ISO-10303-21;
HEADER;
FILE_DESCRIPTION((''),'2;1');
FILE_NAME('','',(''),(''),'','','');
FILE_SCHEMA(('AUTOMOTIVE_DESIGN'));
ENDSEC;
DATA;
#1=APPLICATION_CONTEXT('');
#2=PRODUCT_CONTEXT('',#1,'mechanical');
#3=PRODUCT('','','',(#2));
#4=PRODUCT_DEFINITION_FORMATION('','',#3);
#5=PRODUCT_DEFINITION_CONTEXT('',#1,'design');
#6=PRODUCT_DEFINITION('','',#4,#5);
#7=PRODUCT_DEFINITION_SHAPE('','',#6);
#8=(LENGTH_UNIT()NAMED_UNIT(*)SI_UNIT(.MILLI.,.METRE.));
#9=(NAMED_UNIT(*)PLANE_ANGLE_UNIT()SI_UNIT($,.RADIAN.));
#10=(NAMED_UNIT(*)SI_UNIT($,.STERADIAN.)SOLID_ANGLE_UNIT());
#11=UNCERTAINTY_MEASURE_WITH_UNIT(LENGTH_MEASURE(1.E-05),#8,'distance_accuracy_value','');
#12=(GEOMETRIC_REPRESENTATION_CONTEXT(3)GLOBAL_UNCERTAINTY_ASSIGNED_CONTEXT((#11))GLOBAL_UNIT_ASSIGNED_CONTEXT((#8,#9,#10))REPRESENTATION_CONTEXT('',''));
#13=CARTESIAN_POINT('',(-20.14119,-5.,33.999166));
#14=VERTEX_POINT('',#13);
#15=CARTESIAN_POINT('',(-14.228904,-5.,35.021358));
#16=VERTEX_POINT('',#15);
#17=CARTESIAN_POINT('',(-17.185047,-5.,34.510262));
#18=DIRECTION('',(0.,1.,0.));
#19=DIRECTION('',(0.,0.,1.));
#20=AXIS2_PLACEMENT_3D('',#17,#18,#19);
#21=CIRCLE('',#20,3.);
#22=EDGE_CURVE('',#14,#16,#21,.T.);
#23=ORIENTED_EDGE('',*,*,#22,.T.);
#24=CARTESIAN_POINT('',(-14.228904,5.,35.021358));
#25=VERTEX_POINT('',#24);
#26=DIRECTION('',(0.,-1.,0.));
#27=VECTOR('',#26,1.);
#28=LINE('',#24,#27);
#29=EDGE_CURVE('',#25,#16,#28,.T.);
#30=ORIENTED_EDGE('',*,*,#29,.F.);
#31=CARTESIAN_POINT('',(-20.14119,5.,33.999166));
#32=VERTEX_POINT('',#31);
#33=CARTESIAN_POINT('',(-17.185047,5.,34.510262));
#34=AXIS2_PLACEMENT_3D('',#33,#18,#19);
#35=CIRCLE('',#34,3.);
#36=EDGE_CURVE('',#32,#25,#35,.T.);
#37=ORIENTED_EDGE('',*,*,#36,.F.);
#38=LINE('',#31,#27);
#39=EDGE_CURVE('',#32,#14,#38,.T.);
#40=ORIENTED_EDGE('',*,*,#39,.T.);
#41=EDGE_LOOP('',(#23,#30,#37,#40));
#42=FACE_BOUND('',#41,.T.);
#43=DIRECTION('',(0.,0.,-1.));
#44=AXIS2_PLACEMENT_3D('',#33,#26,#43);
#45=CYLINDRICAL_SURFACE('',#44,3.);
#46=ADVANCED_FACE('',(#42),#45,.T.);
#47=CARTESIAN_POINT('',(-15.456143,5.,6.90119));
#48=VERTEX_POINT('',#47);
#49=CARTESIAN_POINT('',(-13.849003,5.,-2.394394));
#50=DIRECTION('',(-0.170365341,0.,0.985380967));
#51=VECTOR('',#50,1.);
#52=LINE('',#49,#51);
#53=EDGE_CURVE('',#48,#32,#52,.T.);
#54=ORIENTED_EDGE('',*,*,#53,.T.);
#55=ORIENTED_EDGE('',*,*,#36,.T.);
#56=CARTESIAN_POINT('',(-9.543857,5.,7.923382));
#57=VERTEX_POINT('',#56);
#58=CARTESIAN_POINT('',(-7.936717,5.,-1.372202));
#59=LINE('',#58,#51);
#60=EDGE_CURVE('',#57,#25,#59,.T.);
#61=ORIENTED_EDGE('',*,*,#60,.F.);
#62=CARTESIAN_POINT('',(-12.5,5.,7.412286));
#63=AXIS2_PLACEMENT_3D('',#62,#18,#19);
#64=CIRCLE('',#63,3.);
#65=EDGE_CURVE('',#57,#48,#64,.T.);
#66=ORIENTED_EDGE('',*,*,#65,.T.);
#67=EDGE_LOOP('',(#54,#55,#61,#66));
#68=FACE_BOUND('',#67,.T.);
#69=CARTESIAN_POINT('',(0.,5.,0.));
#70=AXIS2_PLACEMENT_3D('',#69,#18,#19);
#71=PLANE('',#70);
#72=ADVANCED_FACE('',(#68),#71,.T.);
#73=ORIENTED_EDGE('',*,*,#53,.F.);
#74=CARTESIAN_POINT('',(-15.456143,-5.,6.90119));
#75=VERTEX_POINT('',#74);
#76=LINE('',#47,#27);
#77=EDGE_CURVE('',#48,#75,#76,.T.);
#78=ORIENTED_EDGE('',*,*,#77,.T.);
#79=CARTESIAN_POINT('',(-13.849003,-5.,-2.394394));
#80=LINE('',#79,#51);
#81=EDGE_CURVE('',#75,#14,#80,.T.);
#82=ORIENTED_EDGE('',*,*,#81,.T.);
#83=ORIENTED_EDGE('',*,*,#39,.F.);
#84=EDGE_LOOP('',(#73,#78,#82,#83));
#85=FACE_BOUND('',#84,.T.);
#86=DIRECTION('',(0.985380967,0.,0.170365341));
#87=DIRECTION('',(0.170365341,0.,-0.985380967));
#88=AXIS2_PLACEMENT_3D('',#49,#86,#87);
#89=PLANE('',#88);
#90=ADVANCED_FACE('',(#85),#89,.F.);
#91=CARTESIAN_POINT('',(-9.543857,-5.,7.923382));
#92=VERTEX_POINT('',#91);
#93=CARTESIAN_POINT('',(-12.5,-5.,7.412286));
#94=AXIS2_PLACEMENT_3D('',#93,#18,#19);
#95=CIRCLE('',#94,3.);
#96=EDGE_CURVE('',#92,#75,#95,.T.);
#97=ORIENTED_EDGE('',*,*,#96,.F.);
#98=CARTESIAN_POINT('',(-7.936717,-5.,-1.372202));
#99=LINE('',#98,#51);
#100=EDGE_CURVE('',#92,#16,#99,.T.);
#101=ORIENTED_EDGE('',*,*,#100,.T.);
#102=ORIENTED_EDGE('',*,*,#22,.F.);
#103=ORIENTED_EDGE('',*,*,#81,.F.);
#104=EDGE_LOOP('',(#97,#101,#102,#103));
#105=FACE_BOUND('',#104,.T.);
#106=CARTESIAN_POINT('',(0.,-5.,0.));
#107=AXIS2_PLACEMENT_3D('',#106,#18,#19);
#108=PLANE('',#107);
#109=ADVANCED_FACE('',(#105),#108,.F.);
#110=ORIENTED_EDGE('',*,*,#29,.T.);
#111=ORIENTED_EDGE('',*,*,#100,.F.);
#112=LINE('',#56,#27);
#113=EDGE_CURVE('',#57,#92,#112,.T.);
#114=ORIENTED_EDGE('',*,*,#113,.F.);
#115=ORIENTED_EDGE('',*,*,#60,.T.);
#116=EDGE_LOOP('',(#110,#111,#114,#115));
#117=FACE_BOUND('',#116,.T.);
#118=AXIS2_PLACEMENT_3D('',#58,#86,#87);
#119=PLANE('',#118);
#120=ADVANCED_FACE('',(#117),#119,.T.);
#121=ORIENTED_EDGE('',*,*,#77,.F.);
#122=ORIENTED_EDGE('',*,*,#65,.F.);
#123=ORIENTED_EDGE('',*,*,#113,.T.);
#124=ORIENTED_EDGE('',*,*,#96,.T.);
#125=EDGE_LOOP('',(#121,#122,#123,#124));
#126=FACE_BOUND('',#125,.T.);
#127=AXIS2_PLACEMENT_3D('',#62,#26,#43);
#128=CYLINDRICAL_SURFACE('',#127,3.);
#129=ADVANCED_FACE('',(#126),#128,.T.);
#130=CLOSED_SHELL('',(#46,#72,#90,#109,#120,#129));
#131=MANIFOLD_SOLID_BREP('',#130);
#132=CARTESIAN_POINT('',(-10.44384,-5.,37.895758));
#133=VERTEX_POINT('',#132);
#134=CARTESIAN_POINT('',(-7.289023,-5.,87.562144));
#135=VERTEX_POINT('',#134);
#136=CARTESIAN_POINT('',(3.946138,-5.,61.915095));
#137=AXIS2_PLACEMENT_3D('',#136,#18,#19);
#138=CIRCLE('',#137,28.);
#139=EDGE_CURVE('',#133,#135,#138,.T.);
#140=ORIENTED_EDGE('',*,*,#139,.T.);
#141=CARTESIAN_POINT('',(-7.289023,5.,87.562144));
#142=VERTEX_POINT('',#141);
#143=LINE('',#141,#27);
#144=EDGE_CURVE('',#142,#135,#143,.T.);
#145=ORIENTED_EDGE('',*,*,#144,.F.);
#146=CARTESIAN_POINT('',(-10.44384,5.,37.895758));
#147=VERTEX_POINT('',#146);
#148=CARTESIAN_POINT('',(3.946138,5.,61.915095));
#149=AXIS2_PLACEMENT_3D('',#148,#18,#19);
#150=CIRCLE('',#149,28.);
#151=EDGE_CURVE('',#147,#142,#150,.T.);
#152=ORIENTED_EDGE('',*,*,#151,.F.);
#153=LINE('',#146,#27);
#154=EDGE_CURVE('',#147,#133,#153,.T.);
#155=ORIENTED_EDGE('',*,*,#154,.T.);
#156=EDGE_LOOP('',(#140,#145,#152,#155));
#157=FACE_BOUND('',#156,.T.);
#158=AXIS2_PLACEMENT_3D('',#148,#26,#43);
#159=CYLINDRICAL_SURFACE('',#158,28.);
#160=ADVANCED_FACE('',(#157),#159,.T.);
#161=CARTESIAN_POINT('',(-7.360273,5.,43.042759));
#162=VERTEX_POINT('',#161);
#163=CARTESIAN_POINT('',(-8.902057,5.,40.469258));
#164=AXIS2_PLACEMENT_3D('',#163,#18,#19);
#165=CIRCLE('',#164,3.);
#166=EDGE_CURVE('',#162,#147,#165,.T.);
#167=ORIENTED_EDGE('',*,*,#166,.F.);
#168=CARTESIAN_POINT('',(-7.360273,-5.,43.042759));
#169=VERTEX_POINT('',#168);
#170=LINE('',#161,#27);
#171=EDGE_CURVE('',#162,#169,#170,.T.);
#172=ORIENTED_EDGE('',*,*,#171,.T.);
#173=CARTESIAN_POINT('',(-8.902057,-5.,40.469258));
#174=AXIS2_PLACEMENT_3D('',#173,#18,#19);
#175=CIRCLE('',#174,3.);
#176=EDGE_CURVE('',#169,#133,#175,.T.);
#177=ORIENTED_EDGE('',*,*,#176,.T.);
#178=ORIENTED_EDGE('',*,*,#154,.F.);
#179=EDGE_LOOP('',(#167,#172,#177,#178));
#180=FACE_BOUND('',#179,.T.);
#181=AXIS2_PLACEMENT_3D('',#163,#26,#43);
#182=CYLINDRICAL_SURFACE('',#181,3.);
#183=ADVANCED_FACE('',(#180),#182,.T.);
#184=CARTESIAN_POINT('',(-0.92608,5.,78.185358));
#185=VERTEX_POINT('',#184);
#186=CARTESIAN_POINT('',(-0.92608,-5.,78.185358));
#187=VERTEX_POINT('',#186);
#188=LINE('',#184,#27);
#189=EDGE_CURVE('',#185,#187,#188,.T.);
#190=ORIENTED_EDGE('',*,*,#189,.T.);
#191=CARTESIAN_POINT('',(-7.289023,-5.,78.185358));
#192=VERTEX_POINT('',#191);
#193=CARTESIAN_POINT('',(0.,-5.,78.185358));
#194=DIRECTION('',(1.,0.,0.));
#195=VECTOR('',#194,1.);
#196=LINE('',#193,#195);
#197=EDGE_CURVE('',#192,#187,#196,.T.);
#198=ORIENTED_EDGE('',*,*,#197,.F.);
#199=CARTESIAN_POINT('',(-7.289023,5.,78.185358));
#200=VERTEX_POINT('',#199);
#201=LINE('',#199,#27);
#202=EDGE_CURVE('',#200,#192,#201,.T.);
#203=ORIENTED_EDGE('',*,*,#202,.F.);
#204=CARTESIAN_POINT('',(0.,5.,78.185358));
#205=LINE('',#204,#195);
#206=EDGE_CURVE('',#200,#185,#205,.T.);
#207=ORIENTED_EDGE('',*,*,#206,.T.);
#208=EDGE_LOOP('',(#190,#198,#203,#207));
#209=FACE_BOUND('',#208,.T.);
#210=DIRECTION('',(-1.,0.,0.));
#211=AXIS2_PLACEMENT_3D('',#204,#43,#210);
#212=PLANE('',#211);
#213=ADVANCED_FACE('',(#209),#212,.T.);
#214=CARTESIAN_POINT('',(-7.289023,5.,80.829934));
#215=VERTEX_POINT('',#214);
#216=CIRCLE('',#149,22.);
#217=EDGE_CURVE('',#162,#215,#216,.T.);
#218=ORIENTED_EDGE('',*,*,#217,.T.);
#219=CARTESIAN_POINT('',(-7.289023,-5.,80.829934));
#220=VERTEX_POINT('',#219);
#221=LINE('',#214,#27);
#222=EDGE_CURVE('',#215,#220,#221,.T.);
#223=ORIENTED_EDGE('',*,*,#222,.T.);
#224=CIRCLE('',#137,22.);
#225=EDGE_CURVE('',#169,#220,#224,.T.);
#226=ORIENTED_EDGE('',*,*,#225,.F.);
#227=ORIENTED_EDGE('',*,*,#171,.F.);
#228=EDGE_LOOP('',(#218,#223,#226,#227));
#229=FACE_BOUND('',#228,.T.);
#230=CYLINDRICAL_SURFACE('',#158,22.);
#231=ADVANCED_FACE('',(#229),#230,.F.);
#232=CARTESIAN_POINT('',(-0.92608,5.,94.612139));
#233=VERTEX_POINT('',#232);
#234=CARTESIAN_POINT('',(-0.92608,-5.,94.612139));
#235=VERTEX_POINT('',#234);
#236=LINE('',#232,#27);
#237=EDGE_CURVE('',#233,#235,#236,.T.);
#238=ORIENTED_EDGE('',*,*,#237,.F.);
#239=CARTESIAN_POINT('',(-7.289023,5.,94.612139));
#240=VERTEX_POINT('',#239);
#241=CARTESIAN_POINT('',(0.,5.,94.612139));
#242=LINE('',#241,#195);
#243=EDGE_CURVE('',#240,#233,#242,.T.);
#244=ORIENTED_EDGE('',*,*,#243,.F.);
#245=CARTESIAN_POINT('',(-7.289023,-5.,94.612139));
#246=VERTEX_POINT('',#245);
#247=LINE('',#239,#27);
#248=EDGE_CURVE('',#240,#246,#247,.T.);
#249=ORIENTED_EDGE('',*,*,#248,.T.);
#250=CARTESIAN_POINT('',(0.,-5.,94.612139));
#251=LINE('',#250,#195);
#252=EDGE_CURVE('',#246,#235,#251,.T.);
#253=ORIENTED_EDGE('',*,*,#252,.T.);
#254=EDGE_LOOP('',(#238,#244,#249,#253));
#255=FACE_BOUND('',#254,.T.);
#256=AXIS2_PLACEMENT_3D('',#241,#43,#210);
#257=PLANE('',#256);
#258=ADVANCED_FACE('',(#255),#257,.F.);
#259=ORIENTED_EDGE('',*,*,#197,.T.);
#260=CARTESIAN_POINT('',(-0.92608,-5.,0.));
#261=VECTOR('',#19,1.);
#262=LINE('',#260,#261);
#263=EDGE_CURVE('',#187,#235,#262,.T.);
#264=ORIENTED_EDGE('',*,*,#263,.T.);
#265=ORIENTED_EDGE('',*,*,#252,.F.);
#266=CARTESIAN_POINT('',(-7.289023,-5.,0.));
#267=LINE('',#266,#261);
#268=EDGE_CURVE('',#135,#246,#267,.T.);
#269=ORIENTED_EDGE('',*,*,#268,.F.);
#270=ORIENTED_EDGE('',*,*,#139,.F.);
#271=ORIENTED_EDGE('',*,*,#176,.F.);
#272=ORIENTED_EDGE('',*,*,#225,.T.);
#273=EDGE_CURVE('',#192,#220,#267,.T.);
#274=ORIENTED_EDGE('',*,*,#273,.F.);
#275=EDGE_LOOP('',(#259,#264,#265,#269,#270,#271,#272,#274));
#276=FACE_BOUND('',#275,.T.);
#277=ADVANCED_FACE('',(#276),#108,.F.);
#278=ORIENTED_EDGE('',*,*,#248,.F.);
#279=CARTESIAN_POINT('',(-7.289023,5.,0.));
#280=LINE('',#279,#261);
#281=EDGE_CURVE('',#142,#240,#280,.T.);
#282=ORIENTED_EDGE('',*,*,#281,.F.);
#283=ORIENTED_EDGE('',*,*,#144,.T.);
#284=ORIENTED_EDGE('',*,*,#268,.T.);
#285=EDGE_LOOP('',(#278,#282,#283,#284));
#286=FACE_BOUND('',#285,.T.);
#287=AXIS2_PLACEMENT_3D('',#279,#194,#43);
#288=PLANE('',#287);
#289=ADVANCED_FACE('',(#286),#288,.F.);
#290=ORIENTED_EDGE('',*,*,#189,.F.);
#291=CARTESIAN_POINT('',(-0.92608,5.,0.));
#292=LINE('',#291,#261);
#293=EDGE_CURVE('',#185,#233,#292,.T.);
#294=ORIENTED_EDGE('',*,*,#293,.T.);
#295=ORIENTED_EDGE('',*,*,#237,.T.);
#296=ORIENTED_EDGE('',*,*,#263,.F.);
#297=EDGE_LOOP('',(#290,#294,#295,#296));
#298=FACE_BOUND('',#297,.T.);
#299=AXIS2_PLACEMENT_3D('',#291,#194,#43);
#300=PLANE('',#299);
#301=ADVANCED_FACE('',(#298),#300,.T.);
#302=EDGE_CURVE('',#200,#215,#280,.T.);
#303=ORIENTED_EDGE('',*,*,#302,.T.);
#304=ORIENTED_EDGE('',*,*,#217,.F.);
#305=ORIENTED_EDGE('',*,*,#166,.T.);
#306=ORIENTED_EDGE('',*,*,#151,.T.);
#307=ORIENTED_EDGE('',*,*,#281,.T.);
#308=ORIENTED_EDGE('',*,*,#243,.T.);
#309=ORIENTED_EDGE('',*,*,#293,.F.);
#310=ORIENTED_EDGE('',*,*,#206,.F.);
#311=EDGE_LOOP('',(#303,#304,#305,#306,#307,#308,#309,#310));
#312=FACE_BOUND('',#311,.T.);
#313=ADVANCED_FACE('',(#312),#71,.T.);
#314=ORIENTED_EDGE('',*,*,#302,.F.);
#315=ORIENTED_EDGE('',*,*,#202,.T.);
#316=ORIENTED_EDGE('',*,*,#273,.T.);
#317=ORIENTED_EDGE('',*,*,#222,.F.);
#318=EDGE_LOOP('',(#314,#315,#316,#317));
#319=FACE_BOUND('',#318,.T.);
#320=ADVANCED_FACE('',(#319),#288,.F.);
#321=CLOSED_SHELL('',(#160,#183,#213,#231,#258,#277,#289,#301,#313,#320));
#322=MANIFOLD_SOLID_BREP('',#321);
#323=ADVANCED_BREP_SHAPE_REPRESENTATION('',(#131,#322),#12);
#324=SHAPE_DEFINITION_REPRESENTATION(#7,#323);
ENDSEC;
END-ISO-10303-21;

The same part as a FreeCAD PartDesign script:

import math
import FreeCAD as App
import Part
import Sketcher
from FreeCAD import Vector
Q = App.Units.Quantity

doc = App.newDocument("Part")
params = doc.addObject("Spreadsheet::Sheet", "Params")
for row, (alias, value) in enumerate([
    ("sketch1_radius", "3 mm"),
    ("sketch1_length", "27.5 mm"),
    ("pad1_length", "10 mm"),
    ("sketch2_radius", "22 mm"),
    ("sketch2_radius2", "3 mm"),
    ("pad2_length", "10 mm"),
], start=1):
    params.set(f"A{row}", alias)
    params.set(f"B{row}", "=" + value)
    params.setAlias(f"B{row}", alias)

body = doc.addObject("PartDesign::Body", "Body")

sketch1 = body.newObject("Sketcher::SketchObject", "Sketch")
sketch1.AttachmentSupport = (doc.getObject("XZ_Plane"), [""])
sketch1.MapMode = "FlatFace"
sketch1.addGeometry(Part.ArcOfCircle(Part.Circle(Vector(-12.5, 7.4, 0), Vector(0, 0, 1), 3), math.radians(-170), math.radians(10)), False)
sketch1.addGeometry(Part.LineSegment(Vector(-15.5, 6.9, 0), Vector(-20.1, 34, 0)), False)
sketch1.addGeometry(Part.ArcOfCircle(Part.Circle(Vector(-17.2, 34.5, 0), Vector(0, 0, 1), 3), math.radians(10), math.radians(190)), False)
sketch1.addGeometry(Part.LineSegment(Vector(-14.2, 35, 0), Vector(-9.5, 7.9, 0)), False)
sketch1.addConstraint(Sketcher.Constraint("Tangent", 0, 1, 1, 1))
sketch1.addConstraint(Sketcher.Constraint("Tangent", 1, 2, 2, 2))
sketch1.addConstraint(Sketcher.Constraint("Tangent", 2, 1, 3, 1))
sketch1.addConstraint(Sketcher.Constraint("Tangent", 3, 2, 0, 2))
sketch1.addConstraint(Sketcher.Constraint("Equal", 0, 2))
sketch1.addConstraint(Sketcher.Constraint("Radius", 0, Q("3 mm")))
sketch1.addConstraint(Sketcher.Constraint("Distance", 1, Q("27.5 mm")))
sketch1.addConstraint(Sketcher.Constraint("DistanceX", 0, 3, -1, 1, Q("12.5 mm")))
sketch1.addConstraint(Sketcher.Constraint("DistanceY", -1, 1, 0, 1, Q("6.90119 mm")))
sketch1.addConstraint(Sketcher.Constraint("DistanceX", 1, 2, -1, 1, Q("20.14119 mm")))
sketch1.setExpression("Constraints[5]", "Params.sketch1_radius")
sketch1.setExpression("Constraints[6]", "Params.sketch1_length")
pad1 = body.newObject("PartDesign::Pad", "Pad")
pad1.Profile = sketch1
pad1.setExpression("Length", "Params.pad1_length")
pad1.Midplane = True
body2 = doc.addObject("PartDesign::Body", "Body001")

sketch2 = body2.newObject("Sketcher::SketchObject", "Sketch001")
sketch2.AttachmentSupport = (doc.getObject("XZ_Plane001"), [""])
sketch2.MapMode = "FlatFace"
sketch2.addGeometry(Part.LineSegment(Vector(-0.9, 78.2, 0), Vector(-7.3, 78.2, 0)), False)
sketch2.addGeometry(Part.LineSegment(Vector(-7.3, 78.2, 0), Vector(-7.3, 80.8, 0)), False)
sketch2.addGeometry(Part.ArcOfCircle(Part.Circle(Vector(3.9, 61.9, 0), Vector(0, 0, 1), 22), math.radians(121), math.radians(239)), False)
sketch2.addGeometry(Part.ArcOfCircle(Part.Circle(Vector(-8.9, 40.5, 0), Vector(0, 0, 1), 3), math.radians(-121), math.radians(59)), False)
sketch2.addGeometry(Part.ArcOfCircle(Part.Circle(Vector(3.9, 61.9, 0), Vector(0, 0, 1), 28), math.radians(114), math.radians(239)), False)
sketch2.addGeometry(Part.LineSegment(Vector(-7.3, 87.6, 0), Vector(-7.3, 94.6, 0)), False)
sketch2.addGeometry(Part.LineSegment(Vector(-7.3, 94.6, 0), Vector(-0.9, 94.6, 0)), False)
sketch2.addGeometry(Part.LineSegment(Vector(-0.9, 94.6, 0), Vector(-0.9, 78.2, 0)), False)
sketch2.addConstraint(Sketcher.Constraint("Coincident", 0, 2, 1, 1))
sketch2.addConstraint(Sketcher.Constraint("Coincident", 1, 2, 2, 1))
sketch2.addConstraint(Sketcher.Constraint("Tangent", 2, 2, 3, 2))
sketch2.addConstraint(Sketcher.Constraint("Tangent", 3, 1, 4, 2))
sketch2.addConstraint(Sketcher.Constraint("Coincident", 4, 1, 5, 1))
sketch2.addConstraint(Sketcher.Constraint("Coincident", 5, 2, 6, 1))
sketch2.addConstraint(Sketcher.Constraint("Coincident", 6, 2, 7, 1))
sketch2.addConstraint(Sketcher.Constraint("Coincident", 7, 2, 0, 1))
sketch2.addConstraint(Sketcher.Constraint("Horizontal", 0))
sketch2.addConstraint(Sketcher.Constraint("Vertical", 1))
sketch2.addConstraint(Sketcher.Constraint("Vertical", 5))
sketch2.addConstraint(Sketcher.Constraint("Horizontal", 6))
sketch2.addConstraint(Sketcher.Constraint("Vertical", 7))
sketch2.addConstraint(Sketcher.Constraint("Coincident", 4, 3, 2, 3))
sketch2.addConstraint(Sketcher.Constraint("Vertical", 1, 2, 4, 1))
sketch2.addConstraint(Sketcher.Constraint("Radius", 2, Q("22 mm")))
sketch2.addConstraint(Sketcher.Constraint("Radius", 3, Q("3 mm")))
sketch2.addConstraint(Sketcher.Constraint("DistanceY", 3, 1, 2, 2, Q("5.147001 mm")))
sketch2.addConstraint(Sketcher.Constraint("DistanceY", 7, 2, 7, 1, Q("16.426781 mm")))
sketch2.addConstraint(Sketcher.Constraint("DistanceY", 3, 3, 0, 2, Q("37.7161 mm")))
sketch2.addConstraint(Sketcher.Constraint("DistanceX", 0, 2, 0, 1, Q("6.362943 mm")))
sketch2.addConstraint(Sketcher.Constraint("DistanceY", 1, 1, 1, 2, Q("2.644576 mm")))
sketch2.addConstraint(Sketcher.Constraint("DistanceY", -1, 1, 3, 3, Q("40.469258 mm")))
sketch2.addConstraint(Sketcher.Constraint("DistanceX", 3, 1, -1, 1, Q("10.44384 mm")))
sketch2.setExpression("Constraints[15]", "Params.sketch2_radius")
sketch2.setExpression("Constraints[16]", "Params.sketch2_radius2")
pad2 = body2.newObject("PartDesign::Pad", "Pad001")
pad2.Profile = sketch2
pad2.setExpression("Length", "Params.pad2_length")
pad2.Midplane = True

doc.recompute()
